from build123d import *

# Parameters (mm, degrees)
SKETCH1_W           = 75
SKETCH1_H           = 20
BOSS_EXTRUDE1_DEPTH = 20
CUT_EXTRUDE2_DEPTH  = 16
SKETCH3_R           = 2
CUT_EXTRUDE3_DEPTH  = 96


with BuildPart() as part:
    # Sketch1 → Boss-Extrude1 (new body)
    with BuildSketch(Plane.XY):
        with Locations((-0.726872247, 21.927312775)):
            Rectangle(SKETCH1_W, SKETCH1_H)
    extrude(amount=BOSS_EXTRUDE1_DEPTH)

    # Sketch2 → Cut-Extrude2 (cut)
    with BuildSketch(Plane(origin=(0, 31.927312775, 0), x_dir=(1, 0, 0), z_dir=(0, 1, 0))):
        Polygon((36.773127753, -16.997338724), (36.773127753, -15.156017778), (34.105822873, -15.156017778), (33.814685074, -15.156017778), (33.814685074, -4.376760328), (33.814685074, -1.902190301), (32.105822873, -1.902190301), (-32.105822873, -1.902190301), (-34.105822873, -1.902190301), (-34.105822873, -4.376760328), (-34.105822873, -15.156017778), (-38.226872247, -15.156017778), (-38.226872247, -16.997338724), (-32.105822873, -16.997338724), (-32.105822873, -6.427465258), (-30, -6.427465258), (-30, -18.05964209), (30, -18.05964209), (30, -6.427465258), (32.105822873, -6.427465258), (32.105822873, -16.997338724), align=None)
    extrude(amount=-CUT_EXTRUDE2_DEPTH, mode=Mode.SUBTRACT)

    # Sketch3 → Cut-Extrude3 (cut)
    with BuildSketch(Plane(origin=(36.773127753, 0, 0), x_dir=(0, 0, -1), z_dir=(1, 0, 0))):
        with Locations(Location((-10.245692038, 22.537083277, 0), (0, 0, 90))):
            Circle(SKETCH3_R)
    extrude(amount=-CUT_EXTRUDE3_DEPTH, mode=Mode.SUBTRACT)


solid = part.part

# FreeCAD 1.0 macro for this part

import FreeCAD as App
import Part
import Sketcher

doc = App.newDocument("Part")
params = doc.addObject("Spreadsheet::Sheet", "Params")
for row, (alias, value) in enumerate([
    ("sketch1_width", "75 mm"),
    ("sketch1_height", "20 mm"),
    ("pad1_length", "20 mm"),
    ("sketch2_width", "60 mm"),
    ("pocket1_length", "16 mm"),
    ("sketch3_diameter", "4 mm"),
    ("pocket2_length", "96 mm"),
], start=1):
    params.set(f"A{row}", alias)
    params.set(f"B{row}", "=" + value)
    params.setAlias(f"B{row}", alias)

body = doc.addObject("PartDesign::Body", "Body")

# Sketch on XY plane
sketch1 = body.newObject("Sketcher::SketchObject", "Sketch")
sketch1.AttachmentSupport = (doc.getObject("XY_Plane"), [""])
sketch1.MapMode = "FlatFace"
sketch1.addGeometry(Part.LineSegment(App.Vector(-38, 32, 0), App.Vector(-38, 12, 0)), False)
sketch1.addGeometry(Part.LineSegment(App.Vector(-38, 12, 0), App.Vector(37, 12, 0)), False)
sketch1.addGeometry(Part.LineSegment(App.Vector(37, 12, 0), App.Vector(37, 32, 0)), False)
sketch1.addGeometry(Part.LineSegment(App.Vector(37, 32, 0), App.Vector(-38, 32, 0)), False)
sketch1.addConstraint(Sketcher.Constraint("Coincident", 0, 2, 1, 1))
sketch1.addConstraint(Sketcher.Constraint("Coincident", 1, 2, 2, 1))
sketch1.addConstraint(Sketcher.Constraint("Coincident", 2, 2, 3, 1))
sketch1.addConstraint(Sketcher.Constraint("Coincident", 3, 2, 0, 1))
sketch1.addConstraint(Sketcher.Constraint("Vertical", 0))
sketch1.addConstraint(Sketcher.Constraint("Horizontal", 1))
sketch1.addConstraint(Sketcher.Constraint("Vertical", 2))
sketch1.addConstraint(Sketcher.Constraint("Horizontal", 3))
sketch1.addConstraint(Sketcher.Constraint("DistanceX", 1, 1, 1, 2, 75.0))
sketch1.addConstraint(Sketcher.Constraint("DistanceY", 0, 2, 0, 1, 20.0))
sketch1.addConstraint(Sketcher.Constraint("DistanceX", 0, 2, -1, 1, 38.226872))
sketch1.addConstraint(Sketcher.Constraint("DistanceY", -1, 1, 0, 2, 11.927313))
sketch1.setExpression("Constraints[8]", "Params.sketch1_width")
sketch1.setExpression("Constraints[9]", "Params.sketch1_height")
pad1 = body.newObject("PartDesign::Pad", "Pad")
pad1.Profile = sketch1
pad1.setExpression("Length", "Params.pad1_length")

# Sketch on XZ plane
sketch2 = body.newObject("Sketcher::SketchObject", "Sketch001")
sketch2.AttachmentSupport = (doc.getObject("XZ_Plane"), [""])
sketch2.MapMode = "FlatFace"
sketch2.AttachmentOffset = App.Placement(App.Vector(0, 0, -31.927313), App.Rotation())
sketch2.addGeometry(Part.LineSegment(App.Vector(36.8, 17, 0), App.Vector(36.8, 15.2, 0)), False)
sketch2.addGeometry(Part.LineSegment(App.Vector(36.8, 15.2, 0), App.Vector(33.8, 15.2, 0)), False)
sketch2.addGeometry(Part.LineSegment(App.Vector(33.8, 15.2, 0), App.Vector(33.8, 1.9, 0)), False)
sketch2.addGeometry(Part.LineSegment(App.Vector(33.8, 1.9, 0), App.Vector(-34.1, 1.9, 0)), False)
sketch2.addGeometry(Part.LineSegment(App.Vector(-34.1, 1.9, 0), App.Vector(-34.1, 15.2, 0)), False)
sketch2.addGeometry(Part.LineSegment(App.Vector(-34.1, 15.2, 0), App.Vector(-38.2, 15.2, 0)), False)
sketch2.addGeometry(Part.LineSegment(App.Vector(-38.2, 15.2, 0), App.Vector(-38.2, 17, 0)), False)
sketch2.addGeometry(Part.LineSegment(App.Vector(-38.2, 17, 0), App.Vector(-32.1, 17, 0)), False)
sketch2.addGeometry(Part.LineSegment(App.Vector(-32.1, 17, 0), App.Vector(-32.1, 6.4, 0)), False)
sketch2.addGeometry(Part.LineSegment(App.Vector(-32.1, 6.4, 0), App.Vector(-30, 6.4, 0)), False)
sketch2.addGeometry(Part.LineSegment(App.Vector(-30, 6.4, 0), App.Vector(-30, 18.1, 0)), False)
sketch2.addGeometry(Part.LineSegment(App.Vector(-30, 18.1, 0), App.Vector(30, 18.1, 0)), False)
sketch2.addGeometry(Part.LineSegment(App.Vector(30, 18.1, 0), App.Vector(30, 6.4, 0)), False)
sketch2.addGeometry(Part.LineSegment(App.Vector(30, 6.4, 0), App.Vector(32.1, 6.4, 0)), False)
sketch2.addGeometry(Part.LineSegment(App.Vector(32.1, 6.4, 0), App.Vector(32.1, 17, 0)), False)
sketch2.addGeometry(Part.LineSegment(App.Vector(32.1, 17, 0), App.Vector(36.8, 17, 0)), False)
sketch2.addConstraint(Sketcher.Constraint("Coincident", 0, 2, 1, 1))
sketch2.addConstraint(Sketcher.Constraint("Coincident", 1, 2, 2, 1))
sketch2.addConstraint(Sketcher.Constraint("Coincident", 2, 2, 3, 1))
sketch2.addConstraint(Sketcher.Constraint("Coincident", 3, 2, 4, 1))
sketch2.addConstraint(Sketcher.Constraint("Coincident", 4, 2, 5, 1))
sketch2.addConstraint(Sketcher.Constraint("Coincident", 5, 2, 6, 1))
sketch2.addConstraint(Sketcher.Constraint("Coincident", 6, 2, 7, 1))
sketch2.addConstraint(Sketcher.Constraint("Coincident", 7, 2, 8, 1))
sketch2.addConstraint(Sketcher.Constraint("Coincident", 8, 2, 9, 1))
sketch2.addConstraint(Sketcher.Constraint("Coincident", 9, 2, 10, 1))
sketch2.addConstraint(Sketcher.Constraint("Coincident", 10, 2, 11, 1))
sketch2.addConstraint(Sketcher.Constraint("Coincident", 11, 2, 12, 1))
sketch2.addConstraint(Sketcher.Constraint("Coincident", 12, 2, 13, 1))
sketch2.addConstraint(Sketcher.Constraint("Coincident", 13, 2, 14, 1))
sketch2.addConstraint(Sketcher.Constraint("Coincident", 14, 2, 15, 1))
sketch2.addConstraint(Sketcher.Constraint("Coincident", 15, 2, 0, 1))
sketch2.addConstraint(Sketcher.Constraint("Vertical", 0))
sketch2.addConstraint(Sketcher.Constraint("Horizontal", 1))
sketch2.addConstraint(Sketcher.Constraint("Vertical", 2))
sketch2.addConstraint(Sketcher.Constraint("Horizontal", 3))
sketch2.addConstraint(Sketcher.Constraint("Vertical", 4))
sketch2.addConstraint(Sketcher.Constraint("Horizontal", 5))
sketch2.addConstraint(Sketcher.Constraint("Vertical", 6))
sketch2.addConstraint(Sketcher.Constraint("Horizontal", 7))
sketch2.addConstraint(Sketcher.Constraint("Vertical", 8))
sketch2.addConstraint(Sketcher.Constraint("Horizontal", 9))
sketch2.addConstraint(Sketcher.Constraint("Vertical", 10))
sketch2.addConstraint(Sketcher.Constraint("Horizontal", 11))
sketch2.addConstraint(Sketcher.Constraint("Vertical", 12))
sketch2.addConstraint(Sketcher.Constraint("Horizontal", 13))
sketch2.addConstraint(Sketcher.Constraint("Vertical", 14))
sketch2.addConstraint(Sketcher.Constraint("Horizontal", 15))
sketch2.addConstraint(Sketcher.Constraint("Symmetric", 9, 2, 12, 2, -2))
sketch2.addConstraint(Sketcher.Constraint("Symmetric", 7, 2, 14, 2, -2))
sketch2.addConstraint(Sketcher.Constraint("Horizontal", 1, 2, 4, 2))
sketch2.addConstraint(Sketcher.Constraint("DistanceX", 11, 1, 11, 2, 60.0))
sketch2.addConstraint(Sketcher.Constraint("DistanceX", 5, 2, 0, 2, 75.0))
sketch2.addConstraint(Sketcher.Constraint("DistanceX", 4, 2, 7, 2, 2.0))
sketch2.addConstraint(Sketcher.Constraint("DistanceX", 5, 2, 5, 1, 4.121049))
sketch2.addConstraint(Sketcher.Constraint("DistanceY", 0, 2, 0, 1, 1.841321))
sketch2.addConstraint(Sketcher.Constraint("DistanceX", 1, 2, 1, 1, 2.958443))
sketch2.addConstraint(Sketcher.Constraint("DistanceX", 9, 1, 9, 2, 2.105823))
sketch2.addConstraint(Sketcher.Constraint("DistanceY", 2, 2, 2, 1, 13.253827))
sketch2.addConstraint(Sketcher.Constraint("DistanceY", 8, 2, 8, 1, 10.569873))
sketch2.addConstraint(Sketcher.Constraint("DistanceY", 10, 1, 10, 2, 11.632177))
sketch2.addConstraint(Sketcher.Constraint("DistanceY", -1, 1, 2, 2, 1.90219))
sketch2.setExpression("Constraints[35]", "Params.sketch2_width")
pocket1 = body.newObject("PartDesign::Pocket", "Pocket")
pocket1.Profile = sketch2
pocket1.setExpression("Length", "Params.pocket1_length")
pocket1.Reversed = True

# Sketch on YZ plane
sketch3 = body.newObject("Sketcher::SketchObject", "Sketch002")
sketch3.AttachmentSupport = (doc.getObject("YZ_Plane"), [""])
sketch3.MapMode = "FlatFace"
sketch3.AttachmentOffset = App.Placement(App.Vector(0, 0, 36.773128), App.Rotation())
sketch3.addGeometry(Part.Circle(App.Vector(22.5, 10.2, 0), App.Vector(0, 0, 1), 2), False)
sketch3.addConstraint(Sketcher.Constraint("Diameter", 0, 4.0))
sketch3.addConstraint(Sketcher.Constraint("DistanceX", -1, 1, 0, 3, 22.537083))
sketch3.addConstraint(Sketcher.Constraint("DistanceY", -1, 1, 0, 3, 10.245692))
sketch3.setExpression("Constraints[0]", "Params.sketch3_diameter")
pocket2 = body.newObject("PartDesign::Pocket", "Pocket001")
pocket2.Profile = sketch3
pocket2.setExpression("Length", "Params.pocket2_length")

doc.recompute()
